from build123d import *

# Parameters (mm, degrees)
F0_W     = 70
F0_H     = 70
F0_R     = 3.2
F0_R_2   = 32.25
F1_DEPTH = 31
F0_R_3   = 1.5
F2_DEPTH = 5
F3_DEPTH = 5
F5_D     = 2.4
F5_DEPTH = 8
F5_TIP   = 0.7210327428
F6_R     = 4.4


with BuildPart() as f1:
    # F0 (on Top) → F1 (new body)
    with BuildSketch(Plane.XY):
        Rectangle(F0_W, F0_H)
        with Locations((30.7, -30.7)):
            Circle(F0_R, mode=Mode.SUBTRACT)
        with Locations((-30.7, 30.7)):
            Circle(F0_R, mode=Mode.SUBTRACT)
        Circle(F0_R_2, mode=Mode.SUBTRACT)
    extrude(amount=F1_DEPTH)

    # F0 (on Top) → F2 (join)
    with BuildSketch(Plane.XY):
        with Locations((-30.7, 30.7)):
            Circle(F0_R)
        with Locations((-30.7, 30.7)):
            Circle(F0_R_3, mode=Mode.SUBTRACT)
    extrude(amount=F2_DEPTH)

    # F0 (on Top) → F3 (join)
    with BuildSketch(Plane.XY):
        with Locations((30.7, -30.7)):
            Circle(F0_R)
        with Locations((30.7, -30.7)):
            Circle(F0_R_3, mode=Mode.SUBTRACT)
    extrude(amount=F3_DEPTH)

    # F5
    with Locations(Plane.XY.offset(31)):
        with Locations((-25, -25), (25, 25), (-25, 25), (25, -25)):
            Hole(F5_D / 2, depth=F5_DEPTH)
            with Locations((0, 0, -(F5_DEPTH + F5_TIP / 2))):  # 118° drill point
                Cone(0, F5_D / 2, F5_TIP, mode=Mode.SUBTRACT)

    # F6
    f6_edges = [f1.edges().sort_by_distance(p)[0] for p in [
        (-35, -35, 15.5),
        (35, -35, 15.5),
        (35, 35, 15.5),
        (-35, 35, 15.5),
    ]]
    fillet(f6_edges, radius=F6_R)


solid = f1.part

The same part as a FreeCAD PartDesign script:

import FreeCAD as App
import Part
import Sketcher
Q = App.Units.Quantity


def edges_at(feature, points):
    """Names of the edges that pass closest to the given points."""
    edges = feature.Shape.Edges
    near = lambda p: min(range(len(edges)), key=lambda i: edges[i].distToShape(Part.Vertex(*p))[0])
    return sorted({f"Edge{near(p) + 1}" for p in points})

doc = App.newDocument("Part")
body = doc.addObject("PartDesign::Body", "Body")

sketch1 = body.newObject("Sketcher::SketchObject", "Sketch")
sketch1.AttachmentSupport = (doc.getObject("XY_Plane"), [""])
sketch1.MapMode = "FlatFace"
sketch1.addGeometry(Part.LineSegment(App.Vector(-35, 35, 0), App.Vector(-35, -35, 0)), False)
sketch1.addGeometry(Part.LineSegment(App.Vector(-35, -35, 0), App.Vector(35, -35, 0)), False)
sketch1.addGeometry(Part.LineSegment(App.Vector(35, -35, 0), App.Vector(35, 35, 0)), False)
sketch1.addGeometry(Part.LineSegment(App.Vector(35, 35, 0), App.Vector(-35, 35, 0)), False)
sketch1.addGeometry(Part.Circle(App.Vector(0, 0, 0), App.Vector(0, 0, 1), 32.2), False)
sketch1.addGeometry(Part.Circle(App.Vector(30.7, -30.7, 0), App.Vector(0, 0, 1), 3.2), False)
sketch1.addGeometry(Part.Circle(App.Vector(-30.7, 30.7, 0), App.Vector(0, 0, 1), 3.2), False)
sketch1.addConstraint(Sketcher.Constraint("Coincident", 0, 2, 1, 1))
sketch1.addConstraint(Sketcher.Constraint("Coincident", 1, 2, 2, 1))
sketch1.addConstraint(Sketcher.Constraint("Coincident", 2, 2, 3, 1))
sketch1.addConstraint(Sketcher.Constraint("Coincident", 3, 2, 0, 1))
sketch1.addConstraint(Sketcher.Constraint("Vertical", 0))
sketch1.addConstraint(Sketcher.Constraint("Horizontal", 1))
sketch1.addConstraint(Sketcher.Constraint("Vertical", 2))
sketch1.addConstraint(Sketcher.Constraint("Horizontal", 3))
sketch1.addConstraint(Sketcher.Constraint("Coincident", 4, 3, -1, 1))
sketch1.addConstraint(Sketcher.Constraint("Equal", 5, 6))
sketch1.addConstraint(Sketcher.Constraint("Symmetric", 5, 3, 6, 3, -1, 1))
sketch1.addConstraint(Sketcher.Constraint("Symmetric", 0, 2, 2, 2, -1, 1))
sketch1.addConstraint(Sketcher.Constraint("Equal", 3, 0))
sketch1.addConstraint(Sketcher.Constraint("Diameter", 4, Q("64.5 mm")))
sketch1.addConstraint(Sketcher.Constraint("Diameter", 5, Q("6.4 mm")))
sketch1.addConstraint(Sketcher.Constraint("DistanceX", 1, 1, 1, 2, Q("70 mm")))
sketch1.addConstraint(Sketcher.Constraint("DistanceX", -1, 1, 5, 3, Q("30.7 mm")))
sketch1.addConstraint(Sketcher.Constraint("DistanceY", 5, 3, -1, 1, Q("30.7 mm")))
pad1 = body.newObject("PartDesign::Pad", "Pad")
pad1.Profile = sketch1
pad1.Length = 31

sketch2 = body.newObject("Sketcher::SketchObject", "Sketch001")
sketch2.AttachmentSupport = (doc.getObject("XY_Plane"), [""])
sketch2.MapMode = "FlatFace"
sketch2.addGeometry(Part.Circle(App.Vector(-30.7, 30.7, 0), App.Vector(0, 0, 1), 3.2), False)
sketch2.addGeometry(Part.Circle(App.Vector(-30.7, 30.7, 0), App.Vector(0, 0, 1), 1.5), False)
sketch2.addConstraint(Sketcher.Constraint("Coincident", 1, 3, 0, 3))
sketch2.addConstraint(Sketcher.Constraint("Diameter", 1, Q("3 mm")))
sketch2.addConstraint(Sketcher.Constraint("Diameter", 0, Q("6.4 mm")))
sketch2.addConstraint(Sketcher.Constraint("DistanceX", 0, 3, -1, 1, Q("30.7 mm")))
sketch2.addConstraint(Sketcher.Constraint("DistanceY", -1, 1, 0, 3, Q("30.7 mm")))
pad2 = body.newObject("PartDesign::Pad", "Pad001")
pad2.Profile = sketch2
pad2.Length = 5

sketch3 = body.newObject("Sketcher::SketchObject", "Sketch002")
sketch3.AttachmentSupport = (doc.getObject("XY_Plane"), [""])
sketch3.MapMode = "FlatFace"
sketch3.addGeometry(Part.Circle(App.Vector(30.7, -30.7, 0), App.Vector(0, 0, 1), 3.2), False)
sketch3.addGeometry(Part.Circle(App.Vector(30.7, -30.7, 0), App.Vector(0, 0, 1), 1.5), False)
sketch3.addConstraint(Sketcher.Constraint("Coincident", 1, 3, 0, 3))
sketch3.addConstraint(Sketcher.Constraint("Diameter", 1, Q("3 mm")))
sketch3.addConstraint(Sketcher.Constraint("Diameter", 0, Q("6.4 mm")))
sketch3.addConstraint(Sketcher.Constraint("DistanceX", -1, 1, 0, 3, Q("30.7 mm")))
sketch3.addConstraint(Sketcher.Constraint("DistanceY", 0, 3, -1, 1, Q("30.7 mm")))
pad3 = body.newObject("PartDesign::Pad", "Pad002")
pad3.Profile = sketch3
pad3.Length = 5

sketch4 = body.newObject("Sketcher::SketchObject", "Sketch003")
sketch4.AttachmentSupport = (doc.getObject("XY_Plane"), [""])
sketch4.MapMode = "FlatFace"
sketch4.AttachmentOffset = App.Placement(App.Vector(0, 0, 31), App.Rotation())
sketch4.addGeometry(Part.Circle(App.Vector(-25, -25, 0), App.Vector(0, 0, 1), 1.2), False)
sketch4.addGeometry(Part.Circle(App.Vector(25, 25, 0), App.Vector(0, 0, 1), 1.2), False)
sketch4.addGeometry(Part.Circle(App.Vector(-25, 25, 0), App.Vector(0, 0, 1), 1.2), False)
sketch4.addGeometry(Part.Circle(App.Vector(25, -25, 0), App.Vector(0, 0, 1), 1.2), False)
sketch4.addConstraint(Sketcher.Constraint("Equal", 0, 1))
sketch4.addConstraint(Sketcher.Constraint("Equal", 1, 2))
sketch4.addConstraint(Sketcher.Constraint("Equal", 2, 3))
sketch4.addConstraint(Sketcher.Constraint("Symmetric", 0, 3, 1, 3, -1, 1))
sketch4.addConstraint(Sketcher.Constraint("Symmetric", 2, 3, 3, 3, -1, 1))
sketch4.addConstraint(Sketcher.Constraint("Symmetric", 1, 3, 2, 3, -2))
sketch4.addConstraint(Sketcher.Constraint("Diameter", 0, Q("2.4 mm")))
sketch4.addConstraint(Sketcher.Constraint("DistanceX", 0, 3, -1, 1, Q("25 mm")))
sketch4.addConstraint(Sketcher.Constraint("DistanceY", 0, 3, -1, 1, Q("25 mm")))
doc.recompute()
hole = body.newObject("PartDesign::Hole", "Hole")
hole.Profile = sketch4
hole.ThreadType = "None"
hole.Diameter = 2.4
hole.DepthType = "Dimension"
hole.Depth = 8
hole.DrillPoint = "Angled"
hole.DrillPointAngle = 118
doc.recompute()

fillet = body.newObject("PartDesign::Fillet", "Fillet")
fillet.Base = (hole, edges_at(hole, [
    (-35, -35, 15.5),
    (35, -35, 15.5),
    (35, 35, 15.5),
    (-35, 35, 15.5),
]))
fillet.Radius = 4.4

doc.recompute()
